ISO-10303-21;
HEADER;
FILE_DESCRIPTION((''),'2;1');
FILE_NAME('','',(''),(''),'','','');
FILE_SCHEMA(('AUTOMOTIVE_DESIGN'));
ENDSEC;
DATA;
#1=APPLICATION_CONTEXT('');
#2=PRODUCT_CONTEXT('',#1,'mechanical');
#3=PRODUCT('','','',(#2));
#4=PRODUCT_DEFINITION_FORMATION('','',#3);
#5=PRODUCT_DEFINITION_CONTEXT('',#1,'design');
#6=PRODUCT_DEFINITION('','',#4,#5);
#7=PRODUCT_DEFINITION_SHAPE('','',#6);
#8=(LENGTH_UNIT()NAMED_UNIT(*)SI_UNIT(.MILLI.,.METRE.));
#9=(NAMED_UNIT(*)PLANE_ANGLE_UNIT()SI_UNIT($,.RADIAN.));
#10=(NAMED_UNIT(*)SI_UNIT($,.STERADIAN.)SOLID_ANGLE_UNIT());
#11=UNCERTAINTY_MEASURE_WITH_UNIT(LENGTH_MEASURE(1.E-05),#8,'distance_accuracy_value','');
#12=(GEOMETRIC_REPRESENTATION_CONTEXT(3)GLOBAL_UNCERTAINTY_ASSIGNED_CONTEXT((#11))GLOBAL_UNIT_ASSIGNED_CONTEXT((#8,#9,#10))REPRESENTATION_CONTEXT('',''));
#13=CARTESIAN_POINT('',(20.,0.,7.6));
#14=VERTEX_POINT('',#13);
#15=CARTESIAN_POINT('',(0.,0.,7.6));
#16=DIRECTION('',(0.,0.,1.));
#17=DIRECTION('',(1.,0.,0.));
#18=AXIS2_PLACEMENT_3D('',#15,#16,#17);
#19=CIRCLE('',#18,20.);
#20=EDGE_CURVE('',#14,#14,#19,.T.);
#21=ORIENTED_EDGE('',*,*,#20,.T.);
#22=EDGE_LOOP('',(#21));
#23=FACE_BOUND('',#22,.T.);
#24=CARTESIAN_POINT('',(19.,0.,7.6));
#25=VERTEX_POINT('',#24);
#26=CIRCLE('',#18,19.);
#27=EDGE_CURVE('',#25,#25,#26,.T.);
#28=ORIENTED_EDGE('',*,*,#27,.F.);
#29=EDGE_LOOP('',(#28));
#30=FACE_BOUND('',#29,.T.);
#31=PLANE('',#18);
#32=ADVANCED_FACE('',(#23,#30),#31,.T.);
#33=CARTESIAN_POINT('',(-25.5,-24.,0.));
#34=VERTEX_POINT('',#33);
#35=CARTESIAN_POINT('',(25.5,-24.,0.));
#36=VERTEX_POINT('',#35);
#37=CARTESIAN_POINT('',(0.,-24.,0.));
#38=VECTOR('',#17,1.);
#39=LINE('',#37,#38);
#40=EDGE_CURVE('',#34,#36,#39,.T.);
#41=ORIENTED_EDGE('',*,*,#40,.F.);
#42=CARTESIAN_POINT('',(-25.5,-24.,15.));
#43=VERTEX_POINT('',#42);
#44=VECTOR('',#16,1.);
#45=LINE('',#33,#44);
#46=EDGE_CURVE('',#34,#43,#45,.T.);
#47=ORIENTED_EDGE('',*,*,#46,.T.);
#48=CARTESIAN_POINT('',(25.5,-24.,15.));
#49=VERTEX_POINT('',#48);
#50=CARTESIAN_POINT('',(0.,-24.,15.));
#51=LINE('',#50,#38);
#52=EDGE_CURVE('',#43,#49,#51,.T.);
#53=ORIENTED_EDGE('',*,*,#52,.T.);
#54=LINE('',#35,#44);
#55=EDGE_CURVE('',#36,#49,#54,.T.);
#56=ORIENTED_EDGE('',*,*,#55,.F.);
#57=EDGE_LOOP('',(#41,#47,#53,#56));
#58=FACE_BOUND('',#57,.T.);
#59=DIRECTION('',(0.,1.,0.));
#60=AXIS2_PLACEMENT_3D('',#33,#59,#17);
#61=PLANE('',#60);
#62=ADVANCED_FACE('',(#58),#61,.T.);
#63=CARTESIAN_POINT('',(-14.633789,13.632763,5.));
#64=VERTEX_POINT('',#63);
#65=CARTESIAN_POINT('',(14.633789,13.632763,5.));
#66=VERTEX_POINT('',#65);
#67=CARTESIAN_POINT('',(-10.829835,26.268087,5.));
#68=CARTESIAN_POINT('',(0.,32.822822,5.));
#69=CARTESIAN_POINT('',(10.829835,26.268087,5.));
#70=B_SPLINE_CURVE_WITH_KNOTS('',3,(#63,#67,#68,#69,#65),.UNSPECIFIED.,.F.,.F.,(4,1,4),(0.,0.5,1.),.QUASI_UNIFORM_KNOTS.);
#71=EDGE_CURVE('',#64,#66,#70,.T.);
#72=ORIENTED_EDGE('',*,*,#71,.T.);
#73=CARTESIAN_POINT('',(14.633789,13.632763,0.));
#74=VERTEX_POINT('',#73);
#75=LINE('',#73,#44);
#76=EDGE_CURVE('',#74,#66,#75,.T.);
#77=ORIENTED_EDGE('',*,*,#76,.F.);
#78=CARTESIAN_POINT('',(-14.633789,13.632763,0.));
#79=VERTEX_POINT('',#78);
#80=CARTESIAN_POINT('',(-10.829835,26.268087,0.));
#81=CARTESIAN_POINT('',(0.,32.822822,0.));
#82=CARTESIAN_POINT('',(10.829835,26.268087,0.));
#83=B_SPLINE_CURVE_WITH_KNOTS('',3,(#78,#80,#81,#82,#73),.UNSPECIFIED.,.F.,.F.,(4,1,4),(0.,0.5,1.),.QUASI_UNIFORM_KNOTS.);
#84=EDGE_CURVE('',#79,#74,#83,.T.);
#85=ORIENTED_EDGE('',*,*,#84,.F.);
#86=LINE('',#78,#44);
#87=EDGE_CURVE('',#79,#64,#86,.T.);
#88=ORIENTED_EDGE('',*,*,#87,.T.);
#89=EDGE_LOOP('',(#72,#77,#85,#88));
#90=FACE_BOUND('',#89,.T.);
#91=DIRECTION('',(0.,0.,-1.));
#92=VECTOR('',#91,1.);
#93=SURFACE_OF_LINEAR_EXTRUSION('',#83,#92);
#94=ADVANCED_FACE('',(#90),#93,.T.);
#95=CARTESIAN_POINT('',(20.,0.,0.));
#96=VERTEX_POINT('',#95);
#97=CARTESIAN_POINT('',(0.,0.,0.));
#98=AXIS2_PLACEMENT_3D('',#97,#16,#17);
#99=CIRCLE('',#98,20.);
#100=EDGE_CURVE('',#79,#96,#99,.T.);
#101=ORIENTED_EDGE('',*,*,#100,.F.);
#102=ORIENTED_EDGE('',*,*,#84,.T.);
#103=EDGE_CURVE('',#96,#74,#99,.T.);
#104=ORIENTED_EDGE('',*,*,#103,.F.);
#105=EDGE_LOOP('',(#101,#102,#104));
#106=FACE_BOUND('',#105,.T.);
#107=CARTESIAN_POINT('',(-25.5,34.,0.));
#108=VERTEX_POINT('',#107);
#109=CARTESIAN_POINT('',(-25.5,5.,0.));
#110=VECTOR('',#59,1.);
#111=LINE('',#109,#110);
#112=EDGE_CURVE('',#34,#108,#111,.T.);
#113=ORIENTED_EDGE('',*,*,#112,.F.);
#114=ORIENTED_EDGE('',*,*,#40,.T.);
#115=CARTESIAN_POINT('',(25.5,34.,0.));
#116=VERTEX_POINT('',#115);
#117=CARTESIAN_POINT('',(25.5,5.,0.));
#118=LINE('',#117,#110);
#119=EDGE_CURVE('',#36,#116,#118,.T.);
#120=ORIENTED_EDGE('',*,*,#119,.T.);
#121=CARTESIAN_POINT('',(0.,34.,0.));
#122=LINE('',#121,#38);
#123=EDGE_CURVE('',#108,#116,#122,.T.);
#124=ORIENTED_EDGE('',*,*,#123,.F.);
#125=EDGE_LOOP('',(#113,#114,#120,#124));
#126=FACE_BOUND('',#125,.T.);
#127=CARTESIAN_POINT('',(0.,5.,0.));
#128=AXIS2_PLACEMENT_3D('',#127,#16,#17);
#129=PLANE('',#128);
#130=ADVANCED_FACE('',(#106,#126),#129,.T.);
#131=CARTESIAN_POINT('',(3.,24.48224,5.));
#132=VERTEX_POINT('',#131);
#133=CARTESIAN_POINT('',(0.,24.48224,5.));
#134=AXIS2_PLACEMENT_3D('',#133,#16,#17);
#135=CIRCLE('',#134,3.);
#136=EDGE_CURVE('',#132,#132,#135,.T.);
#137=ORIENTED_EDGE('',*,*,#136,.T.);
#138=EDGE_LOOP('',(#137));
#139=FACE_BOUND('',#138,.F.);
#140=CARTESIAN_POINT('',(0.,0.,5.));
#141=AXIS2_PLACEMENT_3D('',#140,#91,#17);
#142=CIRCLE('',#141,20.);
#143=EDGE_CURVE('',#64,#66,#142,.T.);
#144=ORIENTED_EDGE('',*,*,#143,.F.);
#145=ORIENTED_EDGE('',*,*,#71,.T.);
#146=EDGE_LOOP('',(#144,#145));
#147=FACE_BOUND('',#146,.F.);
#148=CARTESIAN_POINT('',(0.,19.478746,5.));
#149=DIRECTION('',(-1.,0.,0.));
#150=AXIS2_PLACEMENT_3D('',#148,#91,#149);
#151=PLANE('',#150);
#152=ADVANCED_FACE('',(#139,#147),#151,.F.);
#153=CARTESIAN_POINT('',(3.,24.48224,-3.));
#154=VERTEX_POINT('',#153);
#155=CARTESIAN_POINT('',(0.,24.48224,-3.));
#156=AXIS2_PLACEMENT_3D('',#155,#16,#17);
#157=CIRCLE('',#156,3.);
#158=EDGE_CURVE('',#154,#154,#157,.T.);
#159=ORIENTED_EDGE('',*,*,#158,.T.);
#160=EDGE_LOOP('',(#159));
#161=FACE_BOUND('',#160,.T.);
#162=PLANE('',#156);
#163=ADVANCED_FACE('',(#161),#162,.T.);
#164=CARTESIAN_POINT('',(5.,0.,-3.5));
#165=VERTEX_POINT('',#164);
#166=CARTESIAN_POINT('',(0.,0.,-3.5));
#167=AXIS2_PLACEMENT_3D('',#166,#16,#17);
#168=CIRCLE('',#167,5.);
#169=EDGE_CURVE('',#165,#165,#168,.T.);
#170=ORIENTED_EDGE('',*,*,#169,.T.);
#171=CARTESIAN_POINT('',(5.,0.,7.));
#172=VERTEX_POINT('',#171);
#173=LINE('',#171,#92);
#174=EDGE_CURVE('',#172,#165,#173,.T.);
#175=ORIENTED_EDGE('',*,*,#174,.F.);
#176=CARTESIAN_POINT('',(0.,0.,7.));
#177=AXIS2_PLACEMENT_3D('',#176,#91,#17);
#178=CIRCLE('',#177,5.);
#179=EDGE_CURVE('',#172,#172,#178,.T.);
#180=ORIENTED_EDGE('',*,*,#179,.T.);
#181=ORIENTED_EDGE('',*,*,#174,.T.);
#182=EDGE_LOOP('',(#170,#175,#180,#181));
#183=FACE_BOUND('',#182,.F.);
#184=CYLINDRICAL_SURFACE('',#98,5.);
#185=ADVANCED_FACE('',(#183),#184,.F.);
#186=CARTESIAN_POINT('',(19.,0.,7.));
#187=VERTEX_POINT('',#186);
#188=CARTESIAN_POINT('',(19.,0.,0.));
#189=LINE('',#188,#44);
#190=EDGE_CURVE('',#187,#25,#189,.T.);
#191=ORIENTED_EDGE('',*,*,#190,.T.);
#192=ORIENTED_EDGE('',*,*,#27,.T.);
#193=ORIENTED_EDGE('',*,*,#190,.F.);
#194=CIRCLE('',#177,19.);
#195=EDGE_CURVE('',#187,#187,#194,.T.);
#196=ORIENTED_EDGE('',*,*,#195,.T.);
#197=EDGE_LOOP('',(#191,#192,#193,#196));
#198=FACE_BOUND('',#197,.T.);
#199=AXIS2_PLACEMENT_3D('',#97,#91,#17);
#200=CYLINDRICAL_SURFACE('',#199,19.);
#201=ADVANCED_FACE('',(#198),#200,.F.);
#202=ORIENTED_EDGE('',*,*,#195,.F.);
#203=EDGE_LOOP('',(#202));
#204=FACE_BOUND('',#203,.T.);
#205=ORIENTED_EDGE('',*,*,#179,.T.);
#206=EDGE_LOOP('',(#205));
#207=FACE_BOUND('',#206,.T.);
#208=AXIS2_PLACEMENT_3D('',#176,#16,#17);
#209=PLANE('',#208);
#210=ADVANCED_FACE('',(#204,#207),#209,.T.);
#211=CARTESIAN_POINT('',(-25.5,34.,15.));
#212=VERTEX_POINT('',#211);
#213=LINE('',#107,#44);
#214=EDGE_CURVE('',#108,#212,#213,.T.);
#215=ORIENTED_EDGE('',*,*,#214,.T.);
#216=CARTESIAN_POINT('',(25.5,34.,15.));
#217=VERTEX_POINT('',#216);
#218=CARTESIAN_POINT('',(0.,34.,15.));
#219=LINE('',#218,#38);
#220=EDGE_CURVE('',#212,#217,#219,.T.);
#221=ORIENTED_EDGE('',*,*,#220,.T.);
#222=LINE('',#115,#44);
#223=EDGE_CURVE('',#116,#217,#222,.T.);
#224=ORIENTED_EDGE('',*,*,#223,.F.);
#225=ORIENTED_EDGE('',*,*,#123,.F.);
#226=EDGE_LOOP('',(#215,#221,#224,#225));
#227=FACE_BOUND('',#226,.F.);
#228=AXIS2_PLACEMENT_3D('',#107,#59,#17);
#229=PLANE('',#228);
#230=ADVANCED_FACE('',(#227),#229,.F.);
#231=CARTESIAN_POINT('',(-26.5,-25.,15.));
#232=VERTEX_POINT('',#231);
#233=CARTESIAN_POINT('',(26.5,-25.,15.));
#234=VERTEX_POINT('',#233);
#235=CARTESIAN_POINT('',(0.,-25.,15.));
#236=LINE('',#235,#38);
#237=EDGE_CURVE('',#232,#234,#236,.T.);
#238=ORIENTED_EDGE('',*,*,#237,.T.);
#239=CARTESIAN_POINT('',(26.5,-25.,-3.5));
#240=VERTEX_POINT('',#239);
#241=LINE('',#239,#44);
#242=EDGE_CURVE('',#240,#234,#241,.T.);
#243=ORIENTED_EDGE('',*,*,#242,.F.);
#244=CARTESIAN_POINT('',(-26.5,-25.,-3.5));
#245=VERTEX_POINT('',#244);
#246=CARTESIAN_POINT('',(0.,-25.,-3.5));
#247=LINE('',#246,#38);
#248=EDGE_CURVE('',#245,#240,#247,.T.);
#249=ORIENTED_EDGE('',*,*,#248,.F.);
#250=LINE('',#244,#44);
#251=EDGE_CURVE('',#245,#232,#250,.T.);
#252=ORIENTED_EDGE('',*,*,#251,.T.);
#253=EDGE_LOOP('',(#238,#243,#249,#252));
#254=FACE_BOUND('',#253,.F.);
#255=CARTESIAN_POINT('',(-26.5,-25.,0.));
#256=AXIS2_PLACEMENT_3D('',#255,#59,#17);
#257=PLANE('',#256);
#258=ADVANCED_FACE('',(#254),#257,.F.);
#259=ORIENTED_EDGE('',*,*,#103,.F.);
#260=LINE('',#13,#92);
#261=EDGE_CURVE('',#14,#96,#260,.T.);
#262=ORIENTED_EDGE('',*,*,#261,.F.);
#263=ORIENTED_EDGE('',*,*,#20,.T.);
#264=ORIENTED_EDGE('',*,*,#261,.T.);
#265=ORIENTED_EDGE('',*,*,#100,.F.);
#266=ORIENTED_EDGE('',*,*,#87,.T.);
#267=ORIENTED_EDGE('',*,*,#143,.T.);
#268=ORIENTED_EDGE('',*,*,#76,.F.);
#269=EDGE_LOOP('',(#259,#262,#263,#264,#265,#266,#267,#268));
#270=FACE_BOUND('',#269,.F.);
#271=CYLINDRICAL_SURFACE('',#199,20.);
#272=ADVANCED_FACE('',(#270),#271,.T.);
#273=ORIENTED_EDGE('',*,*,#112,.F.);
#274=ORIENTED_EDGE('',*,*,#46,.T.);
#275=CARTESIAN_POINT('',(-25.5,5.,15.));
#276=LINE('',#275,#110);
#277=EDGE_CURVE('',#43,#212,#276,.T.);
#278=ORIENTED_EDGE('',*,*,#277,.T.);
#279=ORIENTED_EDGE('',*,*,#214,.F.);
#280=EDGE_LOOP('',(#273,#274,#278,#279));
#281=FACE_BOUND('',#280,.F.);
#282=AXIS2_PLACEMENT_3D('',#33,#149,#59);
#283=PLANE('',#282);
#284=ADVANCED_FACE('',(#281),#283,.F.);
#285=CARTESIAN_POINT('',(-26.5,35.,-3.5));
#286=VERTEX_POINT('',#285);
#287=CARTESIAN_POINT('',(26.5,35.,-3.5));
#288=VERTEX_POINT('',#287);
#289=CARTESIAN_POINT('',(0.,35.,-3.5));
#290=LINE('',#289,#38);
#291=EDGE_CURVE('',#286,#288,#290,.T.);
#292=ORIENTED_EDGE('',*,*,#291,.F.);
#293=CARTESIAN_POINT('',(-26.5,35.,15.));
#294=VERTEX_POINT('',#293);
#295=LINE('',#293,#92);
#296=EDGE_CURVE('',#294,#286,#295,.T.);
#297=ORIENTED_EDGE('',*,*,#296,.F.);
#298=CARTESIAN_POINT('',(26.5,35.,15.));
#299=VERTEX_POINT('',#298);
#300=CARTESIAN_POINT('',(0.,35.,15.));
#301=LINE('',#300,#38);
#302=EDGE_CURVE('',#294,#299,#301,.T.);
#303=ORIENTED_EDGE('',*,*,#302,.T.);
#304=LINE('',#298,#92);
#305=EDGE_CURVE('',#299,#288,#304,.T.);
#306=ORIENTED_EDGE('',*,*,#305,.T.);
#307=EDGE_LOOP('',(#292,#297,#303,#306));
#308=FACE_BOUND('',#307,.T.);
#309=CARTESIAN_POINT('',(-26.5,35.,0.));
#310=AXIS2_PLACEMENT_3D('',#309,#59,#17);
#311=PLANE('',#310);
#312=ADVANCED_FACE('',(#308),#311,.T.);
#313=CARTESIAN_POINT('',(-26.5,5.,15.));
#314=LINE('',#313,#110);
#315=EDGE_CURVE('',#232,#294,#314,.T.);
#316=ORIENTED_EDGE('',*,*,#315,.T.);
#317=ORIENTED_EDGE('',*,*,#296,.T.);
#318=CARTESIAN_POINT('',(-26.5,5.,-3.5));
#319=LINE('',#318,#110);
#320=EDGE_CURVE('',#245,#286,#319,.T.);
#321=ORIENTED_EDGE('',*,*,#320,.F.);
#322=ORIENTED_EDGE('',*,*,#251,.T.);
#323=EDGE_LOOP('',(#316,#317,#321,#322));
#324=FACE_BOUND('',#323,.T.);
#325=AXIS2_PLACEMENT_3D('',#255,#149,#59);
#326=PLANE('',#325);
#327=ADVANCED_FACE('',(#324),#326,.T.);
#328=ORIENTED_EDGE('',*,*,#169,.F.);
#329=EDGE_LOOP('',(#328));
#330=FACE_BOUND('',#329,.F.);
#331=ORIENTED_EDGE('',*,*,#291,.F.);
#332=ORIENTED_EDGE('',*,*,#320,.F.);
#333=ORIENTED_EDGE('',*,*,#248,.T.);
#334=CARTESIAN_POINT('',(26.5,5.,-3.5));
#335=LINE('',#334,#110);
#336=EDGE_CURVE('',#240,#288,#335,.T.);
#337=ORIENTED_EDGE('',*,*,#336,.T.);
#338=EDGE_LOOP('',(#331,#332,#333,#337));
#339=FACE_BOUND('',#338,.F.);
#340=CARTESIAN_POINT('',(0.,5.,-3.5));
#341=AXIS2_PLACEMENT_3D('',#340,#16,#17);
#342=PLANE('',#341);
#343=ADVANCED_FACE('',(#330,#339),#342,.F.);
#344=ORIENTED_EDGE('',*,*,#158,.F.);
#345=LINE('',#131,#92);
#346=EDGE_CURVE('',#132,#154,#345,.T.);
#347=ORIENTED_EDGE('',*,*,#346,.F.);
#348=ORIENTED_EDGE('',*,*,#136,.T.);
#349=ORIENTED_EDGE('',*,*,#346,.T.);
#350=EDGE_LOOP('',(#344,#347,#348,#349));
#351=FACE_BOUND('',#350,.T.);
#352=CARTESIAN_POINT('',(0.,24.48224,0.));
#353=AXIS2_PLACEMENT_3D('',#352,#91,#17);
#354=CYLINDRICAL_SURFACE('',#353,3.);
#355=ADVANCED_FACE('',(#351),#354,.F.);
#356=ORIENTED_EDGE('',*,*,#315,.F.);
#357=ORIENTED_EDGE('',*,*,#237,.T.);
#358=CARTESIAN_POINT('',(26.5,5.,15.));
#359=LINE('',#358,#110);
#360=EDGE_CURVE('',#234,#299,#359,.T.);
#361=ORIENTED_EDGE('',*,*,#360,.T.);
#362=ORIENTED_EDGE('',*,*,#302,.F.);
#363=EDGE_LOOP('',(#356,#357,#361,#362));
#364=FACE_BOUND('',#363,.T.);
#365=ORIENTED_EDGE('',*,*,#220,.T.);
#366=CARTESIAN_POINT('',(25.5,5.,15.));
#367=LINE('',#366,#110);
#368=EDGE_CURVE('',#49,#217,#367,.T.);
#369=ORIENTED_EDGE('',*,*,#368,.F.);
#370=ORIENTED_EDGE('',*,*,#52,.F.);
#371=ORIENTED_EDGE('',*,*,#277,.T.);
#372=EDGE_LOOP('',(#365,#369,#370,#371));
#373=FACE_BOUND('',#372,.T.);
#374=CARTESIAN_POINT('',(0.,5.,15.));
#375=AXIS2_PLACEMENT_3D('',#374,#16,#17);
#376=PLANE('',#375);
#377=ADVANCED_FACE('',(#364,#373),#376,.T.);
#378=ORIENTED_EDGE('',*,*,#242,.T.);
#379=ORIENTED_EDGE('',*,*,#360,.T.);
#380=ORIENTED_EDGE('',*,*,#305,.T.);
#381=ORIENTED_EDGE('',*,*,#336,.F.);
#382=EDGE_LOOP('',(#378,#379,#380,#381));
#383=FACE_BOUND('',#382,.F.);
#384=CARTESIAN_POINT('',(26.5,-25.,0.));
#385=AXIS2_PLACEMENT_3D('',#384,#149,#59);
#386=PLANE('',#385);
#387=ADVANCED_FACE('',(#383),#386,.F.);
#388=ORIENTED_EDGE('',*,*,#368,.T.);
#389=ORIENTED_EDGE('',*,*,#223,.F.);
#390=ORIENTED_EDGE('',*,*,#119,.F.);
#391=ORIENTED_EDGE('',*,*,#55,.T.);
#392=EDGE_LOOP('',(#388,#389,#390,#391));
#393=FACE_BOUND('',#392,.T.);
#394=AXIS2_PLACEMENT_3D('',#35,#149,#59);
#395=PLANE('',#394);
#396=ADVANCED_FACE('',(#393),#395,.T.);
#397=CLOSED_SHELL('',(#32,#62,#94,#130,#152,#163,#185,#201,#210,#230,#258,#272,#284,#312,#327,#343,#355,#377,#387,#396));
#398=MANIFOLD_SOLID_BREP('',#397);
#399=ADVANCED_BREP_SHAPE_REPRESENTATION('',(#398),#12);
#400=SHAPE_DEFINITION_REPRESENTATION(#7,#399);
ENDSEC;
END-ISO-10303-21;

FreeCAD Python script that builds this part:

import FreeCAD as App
import Part
import Sketcher
from FreeCAD import Vector
Q = App.Units.Quantity

doc = App.newDocument("Part")
body = doc.addObject("PartDesign::Body", "Body")

sketch1 = body.newObject("Sketcher::SketchObject", "Sketch")
sketch1.AttachmentSupport = (doc.getObject("XY_Plane"), [""])
sketch1.MapMode = "FlatFace"
sketch1.addGeometry(Part.Circle(Vector(0, 0, 0), Vector(0, 0, 1), 20), False)
sketch1.addConstraint([
    Sketcher.Constraint("Coincident", 0, 3, -1, 1),
    Sketcher.Constraint("Diameter", 0, Q("40 mm")),
])
pad1 = body.newObject("PartDesign::Pad", "Pad")
pad1.Profile = sketch1
pad1.Length = 7

sketch2 = body.newObject("Sketcher::SketchObject", "Sketch001")
sketch2.AttachmentSupport = (doc.getObject("XY_Plane"), [""])
sketch2.MapMode = "FlatFace"
sketch2.addGeometry([
    Part.BSplineCurve([Vector(-14.633789, 13.632763, 0), Vector(-10.829835, 26.268087, 0), Vector(0, 32.822822, 0), Vector(10.829835, 26.268087, 0), Vector(14.633789, 13.632763, 0)], [4, 1, 4], [0, 0.5, 1], False, 3, [1, 1, 1, 1, 1], False),
    Part.LineSegment(Vector(-14.633789, 13.632763, 0), Vector(14.633789, 13.632763, 0)),
    Part.Circle(Vector(0, 24.48224, 0), Vector(0, 0, 1), 3),
], False)
sketch2.addConstraint([
    Sketcher.Constraint("Block", 0),
    Sketcher.Constraint("Coincident", 0, 1, 1, 1),
    Sketcher.Constraint("Coincident", 1, 2, 0, 2),
    Sketcher.Constraint("PointOnObject", 2, 3, -2),
    Sketcher.Constraint("Diameter", 2, Q("6 mm")),
    Sketcher.Constraint("DistanceY", -1, 1, 2, 3, Q("24.48224 mm")),
])
pad2 = body.newObject("PartDesign::Pad", "Pad001")
pad2.Profile = sketch2
pad2.Length = 5

sketch3 = body.newObject("Sketcher::SketchObject", "Sketch002")
sketch3.AttachmentSupport = (doc.getObject("XY_Plane"), [""])
sketch3.MapMode = "FlatFace"
sketch3.addGeometry([
    Part.Circle(Vector(0, 0, 0), Vector(0, 0, 1), 20),
    Part.Circle(Vector(0, 0, 0), Vector(0, 0, 1), 19),
], False)
sketch3.addConstraint([
    Sketcher.Constraint("Coincident", 0, 3, -1, 1),
    Sketcher.Constraint("Coincident", 1, 3, -1, 1),
    Sketcher.Constraint("Diameter", 0, Q("40 mm")),
    Sketcher.Constraint("Diameter", 1, Q("38 mm")),
])
pad3 = body.newObject("PartDesign::Pad", "Pad002")
pad3.Profile = sketch3
pad3.Length = 7.6

sketch4 = body.newObject("Sketcher::SketchObject", "Sketch003")
sketch4.AttachmentSupport = (doc.getObject("XY_Plane"), [""])
sketch4.MapMode = "FlatFace"
sketch4.addGeometry([
    Part.LineSegment(Vector(-26, 35, 0), Vector(-26, -25, 0)),
    Part.LineSegment(Vector(-26, -25, 0), Vector(26, -25, 0)),
    Part.LineSegment(Vector(26, -25, 0), Vector(26, 35, 0)),
    Part.LineSegment(Vector(26, 35, 0), Vector(-26, 35, 0)),
], False)
sketch4.addConstraint([
    Sketcher.Constraint("Coincident", 0, 2, 1, 1),
    Sketcher.Constraint("Coincident", 1, 2, 2, 1),
    Sketcher.Constraint("Coincident", 2, 2, 3, 1),
    Sketcher.Constraint("Coincident", 3, 2, 0, 1),
    Sketcher.Constraint("Vertical", 0),
    Sketcher.Constraint("Horizontal", 1),
    Sketcher.Constraint("Vertical", 2),
    Sketcher.Constraint("Horizontal", 3),
    Sketcher.Constraint("DistanceX", 1, 1, 1, 2, Q("53 mm")),
    Sketcher.Constraint("DistanceY", 0, 2, 0, 1, Q("60 mm")),
    Sketcher.Constraint("DistanceY", 0, 2, -1, 1, Q("25 mm")),
    Sketcher.Constraint("DistanceX", 0, 2, -1, 1, Q("26.5 mm")),
])
pad4 = body.newObject("PartDesign::Pad", "Pad003")
pad4.Profile = sketch4
pad4.Length = 3.5
pad4.Reversed = True

sketch5 = body.newObject("Sketcher::SketchObject", "Sketch004")
sketch5.AttachmentSupport = (doc.getObject("XY_Plane"), [""])
sketch5.MapMode = "FlatFace"
sketch5.addGeometry([
    Part.LineSegment(Vector(-26, 35, 0), Vector(-26, -25, 0)),
    Part.LineSegment(Vector(-26, -25, 0), Vector(26, -25, 0)),
    Part.LineSegment(Vector(26, -25, 0), Vector(26, 35, 0)),
    Part.LineSegment(Vector(26, 35, 0), Vector(-26, 35, 0)),
    Part.LineSegment(Vector(26, -24, 0), Vector(-26, -24, 0)),
    Part.LineSegment(Vector(-26, -24, 0), Vector(-26, 34, 0)),
    Part.LineSegment(Vector(-26, 34, 0), Vector(26, 34, 0)),
    Part.LineSegment(Vector(26, 34, 0), Vector(26, -24, 0)),
], False)
sketch5.addConstraint([
    Sketcher.Constraint("Coincident", 0, 2, 1, 1),
    Sketcher.Constraint("Coincident", 1, 2, 2, 1),
    Sketcher.Constraint("Coincident", 2, 2, 3, 1),
    Sketcher.Constraint("Coincident", 3, 2, 0, 1),
    Sketcher.Constraint("Coincident", 4, 2, 5, 1),
    Sketcher.Constraint("Coincident", 5, 2, 6, 1),
    Sketcher.Constraint("Coincident", 6, 2, 7, 1),
    Sketcher.Constraint("Coincident", 7, 2, 4, 1),
    Sketcher.Constraint("Vertical", 0),
    Sketcher.Constraint("Horizontal", 1),
    Sketcher.Constraint("Vertical", 2),
    Sketcher.Constraint("Horizontal", 3),
    Sketcher.Constraint("Horizontal", 4),
    Sketcher.Constraint("Vertical", 5),
    Sketcher.Constraint("Horizontal", 6),
    Sketcher.Constraint("Vertical", 7),
    Sketcher.Constraint("DistanceX", 1, 1, 1, 2, Q("53 mm")),
    Sketcher.Constraint("DistanceX", 4, 2, 4, 1, Q("51 mm")),
    Sketcher.Constraint("DistanceY", 0, 2, 0, 1, Q("60 mm")),
    Sketcher.Constraint("DistanceY", 5, 1, 5, 2, Q("58 mm")),
    Sketcher.Constraint("DistanceY", 0, 2, -1, 1, Q("25 mm")),
    Sketcher.Constraint("DistanceY", 4, 2, -1, 1, Q("24 mm")),
    Sketcher.Constraint("DistanceX", 0, 2, 4, 2, Q("1 mm")),
    Sketcher.Constraint("DistanceX", 0, 2, -1, 1, Q("26.5 mm")),
])
pad5 = body.newObject("PartDesign::Pad", "Pad004")
pad5.Profile = sketch5
pad5.Length = 15

sketch6 = body.newObject("Sketcher::SketchObject", "Sketch005")
sketch6.AttachmentSupport = (doc.getObject("XY_Plane"), [""])
sketch6.MapMode = "FlatFace"
sketch6.addGeometry(Part.Circle(Vector(0, 24.5, 0), Vector(0, 0, 1), 3), False)
sketch6.addConstraint([
    Sketcher.Constraint("PointOnObject", 0, 3, -2),
    Sketcher.Constraint("Diameter", 0, Q("6 mm")),
    Sketcher.Constraint("DistanceY", -1, 1, 0, 3, Q("24.48224 mm")),
])
pocket1 = body.newObject("PartDesign::Pocket", "Pocket")
pocket1.Profile = sketch6
pocket1.Length = 3

sketch7 = body.newObject("Sketcher::SketchObject", "Sketch006")
sketch7.AttachmentSupport = (doc.getObject("XY_Plane"), [""])
sketch7.MapMode = "FlatFace"
sketch7.addGeometry(Part.Circle(Vector(0, 0, 0), Vector(0, 0, 1), 5), False)
sketch7.addConstraint([
    Sketcher.Constraint("Coincident", 0, 3, -1, 1),
    Sketcher.Constraint("Diameter", 0, Q("10 mm")),
])
pocket2 = body.newObject("PartDesign::Pocket", "Pocket001")
pocket2.Profile = sketch7
pocket2.Type = "ThroughAll"
pocket2.Midplane = True

doc.recompute()
